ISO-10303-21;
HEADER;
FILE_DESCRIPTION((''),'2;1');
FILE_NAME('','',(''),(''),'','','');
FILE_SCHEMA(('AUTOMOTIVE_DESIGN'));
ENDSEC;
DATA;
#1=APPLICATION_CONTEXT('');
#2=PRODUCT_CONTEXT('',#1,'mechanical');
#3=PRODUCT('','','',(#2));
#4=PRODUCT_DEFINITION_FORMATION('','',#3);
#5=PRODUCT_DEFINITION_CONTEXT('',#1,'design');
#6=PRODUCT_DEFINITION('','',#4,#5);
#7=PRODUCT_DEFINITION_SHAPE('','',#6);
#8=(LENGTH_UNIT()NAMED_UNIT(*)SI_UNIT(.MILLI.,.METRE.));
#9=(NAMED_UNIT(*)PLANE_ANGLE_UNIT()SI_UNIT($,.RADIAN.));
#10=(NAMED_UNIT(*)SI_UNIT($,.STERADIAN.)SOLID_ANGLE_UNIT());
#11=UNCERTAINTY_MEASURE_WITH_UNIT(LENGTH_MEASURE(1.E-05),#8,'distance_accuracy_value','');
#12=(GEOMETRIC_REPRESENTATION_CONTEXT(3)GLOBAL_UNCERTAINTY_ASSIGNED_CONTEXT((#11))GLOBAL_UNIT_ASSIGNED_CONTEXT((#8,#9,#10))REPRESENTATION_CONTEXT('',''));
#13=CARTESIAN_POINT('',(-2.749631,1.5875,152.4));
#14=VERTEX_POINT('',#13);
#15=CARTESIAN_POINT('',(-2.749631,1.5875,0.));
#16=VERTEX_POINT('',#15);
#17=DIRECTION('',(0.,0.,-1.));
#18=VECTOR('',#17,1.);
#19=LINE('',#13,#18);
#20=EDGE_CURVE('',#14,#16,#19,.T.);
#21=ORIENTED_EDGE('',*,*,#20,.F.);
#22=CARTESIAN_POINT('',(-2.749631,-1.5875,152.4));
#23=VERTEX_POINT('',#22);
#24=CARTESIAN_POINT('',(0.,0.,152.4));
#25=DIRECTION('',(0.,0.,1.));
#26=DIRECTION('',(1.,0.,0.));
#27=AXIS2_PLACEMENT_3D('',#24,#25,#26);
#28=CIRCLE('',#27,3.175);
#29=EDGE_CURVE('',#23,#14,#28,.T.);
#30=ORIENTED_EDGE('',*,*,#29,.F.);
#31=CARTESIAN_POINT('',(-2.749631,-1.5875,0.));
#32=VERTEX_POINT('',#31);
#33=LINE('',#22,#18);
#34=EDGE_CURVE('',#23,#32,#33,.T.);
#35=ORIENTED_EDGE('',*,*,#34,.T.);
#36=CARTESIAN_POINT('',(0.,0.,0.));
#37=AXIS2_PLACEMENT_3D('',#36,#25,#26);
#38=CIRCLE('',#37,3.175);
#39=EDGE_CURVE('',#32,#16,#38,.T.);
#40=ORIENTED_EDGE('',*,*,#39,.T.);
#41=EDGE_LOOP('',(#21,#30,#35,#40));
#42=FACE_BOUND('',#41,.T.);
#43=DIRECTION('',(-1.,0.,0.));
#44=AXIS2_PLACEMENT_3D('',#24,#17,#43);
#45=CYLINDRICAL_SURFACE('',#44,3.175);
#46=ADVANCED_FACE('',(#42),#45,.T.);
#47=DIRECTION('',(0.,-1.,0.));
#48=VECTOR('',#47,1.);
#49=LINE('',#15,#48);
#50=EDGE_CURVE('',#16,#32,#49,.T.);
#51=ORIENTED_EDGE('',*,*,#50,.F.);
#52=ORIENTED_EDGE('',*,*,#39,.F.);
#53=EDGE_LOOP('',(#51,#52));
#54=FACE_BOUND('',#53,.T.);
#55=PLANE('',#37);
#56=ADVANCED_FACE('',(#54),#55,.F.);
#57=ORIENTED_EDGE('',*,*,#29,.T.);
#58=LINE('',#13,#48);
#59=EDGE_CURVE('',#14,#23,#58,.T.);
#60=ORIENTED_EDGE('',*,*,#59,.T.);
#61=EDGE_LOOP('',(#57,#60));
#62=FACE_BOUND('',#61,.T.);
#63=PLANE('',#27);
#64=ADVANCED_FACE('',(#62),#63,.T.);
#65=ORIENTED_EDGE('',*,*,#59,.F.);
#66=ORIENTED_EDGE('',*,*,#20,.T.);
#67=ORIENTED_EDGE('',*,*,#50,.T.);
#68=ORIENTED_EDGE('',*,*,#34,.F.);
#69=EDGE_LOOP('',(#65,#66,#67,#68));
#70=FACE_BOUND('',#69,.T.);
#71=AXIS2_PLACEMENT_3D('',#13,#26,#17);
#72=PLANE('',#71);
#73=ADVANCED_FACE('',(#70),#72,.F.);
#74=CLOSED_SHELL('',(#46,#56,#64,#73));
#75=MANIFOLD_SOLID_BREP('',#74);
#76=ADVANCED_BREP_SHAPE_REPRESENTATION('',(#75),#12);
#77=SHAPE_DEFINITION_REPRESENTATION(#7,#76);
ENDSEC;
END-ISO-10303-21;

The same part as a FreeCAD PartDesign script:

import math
import FreeCAD as App
import Part
import Sketcher

V = App.Vector
Q = App.Units.Quantity

doc = App.newDocument("Part")
body = doc.addObject("PartDesign::Body", "Body")

# Sketch on XY plane
sketch1 = body.newObject("Sketcher::SketchObject", "Sketch")
sketch1.AttachmentSupport = (doc.getObject("XY_Plane"), [""])
sketch1.MapMode = "FlatFace"
sketch1.addGeometry([
    Part.LineSegment(V(-2.7, 1.6, 0), V(-2.7, -1.6, 0)),
    Part.ArcOfCircle(Part.Circle(V(0, 0, 0), V(0, 0, 1), 3.2), math.radians(-150), math.radians(150)),
], False)
sketch1.addConstraint([
    Sketcher.Constraint("Coincident", 0, 1, 1, 2),
    Sketcher.Constraint("Coincident", 1, 1, 0, 2),
    Sketcher.Constraint("Vertical", 0),
    Sketcher.Constraint("Coincident", 1, 3, -1, 1),
    Sketcher.Constraint("Radius", 1, Q("0.125 in")),
    Sketcher.Constraint("DistanceY", 0, 2, 0, 1, Q("0.125 in")),
])
pad1 = body.newObject("PartDesign::Pad", "Pad")
pad1.Profile = sketch1
pad1.Length = Q("6 in")

doc.recompute()
